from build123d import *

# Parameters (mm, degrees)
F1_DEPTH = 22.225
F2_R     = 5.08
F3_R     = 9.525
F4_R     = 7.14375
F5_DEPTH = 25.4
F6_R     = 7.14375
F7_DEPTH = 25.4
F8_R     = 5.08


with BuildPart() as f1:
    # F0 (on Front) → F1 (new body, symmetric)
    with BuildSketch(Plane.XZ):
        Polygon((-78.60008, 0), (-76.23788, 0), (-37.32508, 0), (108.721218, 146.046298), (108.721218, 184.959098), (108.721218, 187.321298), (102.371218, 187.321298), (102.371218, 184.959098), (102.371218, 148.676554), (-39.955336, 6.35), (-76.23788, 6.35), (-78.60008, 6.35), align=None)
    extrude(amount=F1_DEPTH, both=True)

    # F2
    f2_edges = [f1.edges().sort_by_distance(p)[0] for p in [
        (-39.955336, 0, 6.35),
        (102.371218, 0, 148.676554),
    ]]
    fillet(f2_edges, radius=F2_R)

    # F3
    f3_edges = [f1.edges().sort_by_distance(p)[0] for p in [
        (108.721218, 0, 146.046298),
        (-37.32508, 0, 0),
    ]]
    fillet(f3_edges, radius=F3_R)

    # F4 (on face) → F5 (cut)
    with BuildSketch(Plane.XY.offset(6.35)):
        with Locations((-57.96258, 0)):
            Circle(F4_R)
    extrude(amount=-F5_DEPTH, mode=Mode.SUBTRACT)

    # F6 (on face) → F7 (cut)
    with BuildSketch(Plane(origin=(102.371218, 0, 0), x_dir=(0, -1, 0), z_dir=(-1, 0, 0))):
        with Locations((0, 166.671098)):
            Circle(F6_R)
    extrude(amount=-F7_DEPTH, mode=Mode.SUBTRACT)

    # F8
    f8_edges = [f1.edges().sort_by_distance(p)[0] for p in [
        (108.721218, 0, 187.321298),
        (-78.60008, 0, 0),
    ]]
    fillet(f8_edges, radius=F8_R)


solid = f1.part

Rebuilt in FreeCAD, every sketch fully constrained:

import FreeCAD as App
import Part
import Sketcher
from FreeCAD import Vector
Q = App.Units.Quantity


def edges_at(feature, points):
    """Names of the edges that pass closest to the given points."""
    edges = feature.Shape.Edges
    near = lambda p: min(range(len(edges)), key=lambda i: edges[i].distToShape(Part.Vertex(*p))[0])
    return sorted({f"Edge{near(p) + 1}" for p in points})


def add_polygon(sketch, points):
    """Adds a closed chain of lines whose ends are joined by coincident constraints."""
    first, n = sketch.GeometryCount, len(points)
    for a, b in zip(points, points[1:] + points[:1]):
        sketch.addGeometry(Part.LineSegment(App.Vector(*a, 0), App.Vector(*b, 0)), False)
    for i in range(n):
        sketch.addConstraint(Sketcher.Constraint("Coincident", first + i, 2, first + (i + 1) % n, 1))

doc = App.newDocument("Part")
params = doc.addObject("Spreadsheet::Sheet", "Params")
for row, (alias, value) in enumerate([
    ("sketch1_width", "0.25 in"),
    ("sketch1_width2", "1.625 in"),
    ("pad1_length", "1.75 in"),
    ("fillet_radius", "0.2 in"),
    ("fillet2_radius", "0.375 in"),
    ("sketch2_diameter", "0.5625 in"),
    ("pocket1_length", "1 in"),
    ("sketch3_diameter", "0.5625 in"),
    ("pocket2_length", "1 in"),
    ("fillet3_radius", "0.2 in"),
], start=1):
    params.set(f"A{row}", alias)
    params.set(f"B{row}", "=" + value)
    params.setAlias(f"B{row}", alias)

body = doc.addObject("PartDesign::Body", "Body")

sketch1 = body.newObject("Sketcher::SketchObject", "Sketch")
sketch1.AttachmentSupport = (doc.getObject("XZ_Plane"), [""])
sketch1.MapMode = "FlatFace"
add_polygon(sketch1, [(-78.60008, 0), (-37.32508, 0), (108.721218, 146.046298), (108.721218, 187.321298), (102.371218, 187.321298), (102.371218, 148.676554), (-39.955336, 6.35), (-78.60008, 6.35)])
sketch1.addConstraint(Sketcher.Constraint("Horizontal", 0))
sketch1.addConstraint(Sketcher.Constraint("Vertical", 2))
sketch1.addConstraint(Sketcher.Constraint("Horizontal", 3))
sketch1.addConstraint(Sketcher.Constraint("Vertical", 4))
sketch1.addConstraint(Sketcher.Constraint("Horizontal", 6))
sketch1.addConstraint(Sketcher.Constraint("Vertical", 7))
sketch1.addConstraint(Sketcher.Constraint("PointOnObject", 0, 2, -1))
sketch1.addConstraint(Sketcher.Constraint("Parallel", 1, 5))
sketch1.addConstraint(Sketcher.Constraint("Equal", 0, 2))
sketch1.addConstraint(Sketcher.Constraint("Equal", 6, 4))
sketch1.addConstraint(Sketcher.Constraint("Equal", 3, 7))
sketch1.addConstraint(Sketcher.Constraint("DistanceX", 3, 2, 3, 1, Q("0.25 in")))
sketch1.addConstraint(Sketcher.Constraint("DistanceX", 0, 1, 0, 2, Q("1.625 in")))
sketch1.addConstraint(Sketcher.Constraint("DistanceY", -1, 1, 1, 2, 146.046298))
sketch1.addConstraint(Sketcher.Constraint("DistanceX", 6, 2, 6, 1, 38.644744))
sketch1.addConstraint(Sketcher.Constraint("DistanceX", 0, 2, -1, 1, 37.32508))
sketch1.setExpression("Constraints[19]", "Params.sketch1_width")
sketch1.setExpression("Constraints[20]", "Params.sketch1_width2")
pad1 = body.newObject("PartDesign::Pad", "Pad")
pad1.Profile = sketch1
pad1.setExpression("Length", "Params.pad1_length")
pad1.Midplane = True
doc.recompute()

fillet = body.newObject("PartDesign::Fillet", "Fillet")
fillet.Base = (pad1, edges_at(pad1, [(-39.955, 0, 6.35), (102.371, 0, 148.677)]))
fillet.setExpression("Radius", "Params.fillet_radius")
doc.recompute()

fillet2 = body.newObject("PartDesign::Fillet", "Fillet001")
fillet2.Base = (fillet, edges_at(fillet, [(108.721, 0, 146.046), (-37.325, 0, 0)]))
fillet2.setExpression("Radius", "Params.fillet2_radius")

sketch2 = body.newObject("Sketcher::SketchObject", "Sketch001")
sketch2.AttachmentSupport = (doc.getObject("XY_Plane"), [""])
sketch2.MapMode = "FlatFace"
sketch2.AttachmentOffset = App.Placement(Vector(0, 0, 0.25 * 25.4), App.Rotation())
sketch2.addGeometry(Part.Circle(Vector(-57.96258, 0, 0), Vector(0, 0, 1), 7.14375), False)
sketch2.addConstraint(Sketcher.Constraint("PointOnObject", 0, 3, -1))
sketch2.addConstraint(Sketcher.Constraint("Diameter", 0, Q("0.5625 in")))
sketch2.addConstraint(Sketcher.Constraint("DistanceX", 0, 3, -1, 1, 57.96258))
sketch2.setExpression("Constraints[1]", "Params.sketch2_diameter")
pocket1 = body.newObject("PartDesign::Pocket", "Pocket")
pocket1.Profile = sketch2
pocket1.setExpression("Length", "Params.pocket1_length")

sketch3 = body.newObject("Sketcher::SketchObject", "Sketch002")
sketch3.AttachmentSupport = (doc.getObject("YZ_Plane"), [""])
sketch3.MapMode = "FlatFace"
sketch3.AttachmentOffset = App.Placement(Vector(0, 0, 102.371218), App.Rotation())
sketch3.addGeometry(Part.Circle(Vector(0, 166.671098, 0), Vector(0, 0, 1), 7.14375), False)
sketch3.addConstraint(Sketcher.Constraint("PointOnObject", 0, 3, -2))
sketch3.addConstraint(Sketcher.Constraint("Diameter", 0, Q("0.5625 in")))
sketch3.addConstraint(Sketcher.Constraint("DistanceY", -1, 1, 0, 3, 166.671098))
sketch3.setExpression("Constraints[1]", "Params.sketch3_diameter")
pocket2 = body.newObject("PartDesign::Pocket", "Pocket001")
pocket2.Profile = sketch3
pocket2.setExpression("Length", "Params.pocket2_length")
pocket2.Reversed = True
doc.recompute()

fillet3 = body.newObject("PartDesign::Fillet", "Fillet002")
fillet3.Base = (pocket2, edges_at(pocket2, [(108.721, 0, 187.321), (-78.6, 0, 0)]))
fillet3.setExpression("Radius", "Params.fillet3_radius")

doc.recompute()
